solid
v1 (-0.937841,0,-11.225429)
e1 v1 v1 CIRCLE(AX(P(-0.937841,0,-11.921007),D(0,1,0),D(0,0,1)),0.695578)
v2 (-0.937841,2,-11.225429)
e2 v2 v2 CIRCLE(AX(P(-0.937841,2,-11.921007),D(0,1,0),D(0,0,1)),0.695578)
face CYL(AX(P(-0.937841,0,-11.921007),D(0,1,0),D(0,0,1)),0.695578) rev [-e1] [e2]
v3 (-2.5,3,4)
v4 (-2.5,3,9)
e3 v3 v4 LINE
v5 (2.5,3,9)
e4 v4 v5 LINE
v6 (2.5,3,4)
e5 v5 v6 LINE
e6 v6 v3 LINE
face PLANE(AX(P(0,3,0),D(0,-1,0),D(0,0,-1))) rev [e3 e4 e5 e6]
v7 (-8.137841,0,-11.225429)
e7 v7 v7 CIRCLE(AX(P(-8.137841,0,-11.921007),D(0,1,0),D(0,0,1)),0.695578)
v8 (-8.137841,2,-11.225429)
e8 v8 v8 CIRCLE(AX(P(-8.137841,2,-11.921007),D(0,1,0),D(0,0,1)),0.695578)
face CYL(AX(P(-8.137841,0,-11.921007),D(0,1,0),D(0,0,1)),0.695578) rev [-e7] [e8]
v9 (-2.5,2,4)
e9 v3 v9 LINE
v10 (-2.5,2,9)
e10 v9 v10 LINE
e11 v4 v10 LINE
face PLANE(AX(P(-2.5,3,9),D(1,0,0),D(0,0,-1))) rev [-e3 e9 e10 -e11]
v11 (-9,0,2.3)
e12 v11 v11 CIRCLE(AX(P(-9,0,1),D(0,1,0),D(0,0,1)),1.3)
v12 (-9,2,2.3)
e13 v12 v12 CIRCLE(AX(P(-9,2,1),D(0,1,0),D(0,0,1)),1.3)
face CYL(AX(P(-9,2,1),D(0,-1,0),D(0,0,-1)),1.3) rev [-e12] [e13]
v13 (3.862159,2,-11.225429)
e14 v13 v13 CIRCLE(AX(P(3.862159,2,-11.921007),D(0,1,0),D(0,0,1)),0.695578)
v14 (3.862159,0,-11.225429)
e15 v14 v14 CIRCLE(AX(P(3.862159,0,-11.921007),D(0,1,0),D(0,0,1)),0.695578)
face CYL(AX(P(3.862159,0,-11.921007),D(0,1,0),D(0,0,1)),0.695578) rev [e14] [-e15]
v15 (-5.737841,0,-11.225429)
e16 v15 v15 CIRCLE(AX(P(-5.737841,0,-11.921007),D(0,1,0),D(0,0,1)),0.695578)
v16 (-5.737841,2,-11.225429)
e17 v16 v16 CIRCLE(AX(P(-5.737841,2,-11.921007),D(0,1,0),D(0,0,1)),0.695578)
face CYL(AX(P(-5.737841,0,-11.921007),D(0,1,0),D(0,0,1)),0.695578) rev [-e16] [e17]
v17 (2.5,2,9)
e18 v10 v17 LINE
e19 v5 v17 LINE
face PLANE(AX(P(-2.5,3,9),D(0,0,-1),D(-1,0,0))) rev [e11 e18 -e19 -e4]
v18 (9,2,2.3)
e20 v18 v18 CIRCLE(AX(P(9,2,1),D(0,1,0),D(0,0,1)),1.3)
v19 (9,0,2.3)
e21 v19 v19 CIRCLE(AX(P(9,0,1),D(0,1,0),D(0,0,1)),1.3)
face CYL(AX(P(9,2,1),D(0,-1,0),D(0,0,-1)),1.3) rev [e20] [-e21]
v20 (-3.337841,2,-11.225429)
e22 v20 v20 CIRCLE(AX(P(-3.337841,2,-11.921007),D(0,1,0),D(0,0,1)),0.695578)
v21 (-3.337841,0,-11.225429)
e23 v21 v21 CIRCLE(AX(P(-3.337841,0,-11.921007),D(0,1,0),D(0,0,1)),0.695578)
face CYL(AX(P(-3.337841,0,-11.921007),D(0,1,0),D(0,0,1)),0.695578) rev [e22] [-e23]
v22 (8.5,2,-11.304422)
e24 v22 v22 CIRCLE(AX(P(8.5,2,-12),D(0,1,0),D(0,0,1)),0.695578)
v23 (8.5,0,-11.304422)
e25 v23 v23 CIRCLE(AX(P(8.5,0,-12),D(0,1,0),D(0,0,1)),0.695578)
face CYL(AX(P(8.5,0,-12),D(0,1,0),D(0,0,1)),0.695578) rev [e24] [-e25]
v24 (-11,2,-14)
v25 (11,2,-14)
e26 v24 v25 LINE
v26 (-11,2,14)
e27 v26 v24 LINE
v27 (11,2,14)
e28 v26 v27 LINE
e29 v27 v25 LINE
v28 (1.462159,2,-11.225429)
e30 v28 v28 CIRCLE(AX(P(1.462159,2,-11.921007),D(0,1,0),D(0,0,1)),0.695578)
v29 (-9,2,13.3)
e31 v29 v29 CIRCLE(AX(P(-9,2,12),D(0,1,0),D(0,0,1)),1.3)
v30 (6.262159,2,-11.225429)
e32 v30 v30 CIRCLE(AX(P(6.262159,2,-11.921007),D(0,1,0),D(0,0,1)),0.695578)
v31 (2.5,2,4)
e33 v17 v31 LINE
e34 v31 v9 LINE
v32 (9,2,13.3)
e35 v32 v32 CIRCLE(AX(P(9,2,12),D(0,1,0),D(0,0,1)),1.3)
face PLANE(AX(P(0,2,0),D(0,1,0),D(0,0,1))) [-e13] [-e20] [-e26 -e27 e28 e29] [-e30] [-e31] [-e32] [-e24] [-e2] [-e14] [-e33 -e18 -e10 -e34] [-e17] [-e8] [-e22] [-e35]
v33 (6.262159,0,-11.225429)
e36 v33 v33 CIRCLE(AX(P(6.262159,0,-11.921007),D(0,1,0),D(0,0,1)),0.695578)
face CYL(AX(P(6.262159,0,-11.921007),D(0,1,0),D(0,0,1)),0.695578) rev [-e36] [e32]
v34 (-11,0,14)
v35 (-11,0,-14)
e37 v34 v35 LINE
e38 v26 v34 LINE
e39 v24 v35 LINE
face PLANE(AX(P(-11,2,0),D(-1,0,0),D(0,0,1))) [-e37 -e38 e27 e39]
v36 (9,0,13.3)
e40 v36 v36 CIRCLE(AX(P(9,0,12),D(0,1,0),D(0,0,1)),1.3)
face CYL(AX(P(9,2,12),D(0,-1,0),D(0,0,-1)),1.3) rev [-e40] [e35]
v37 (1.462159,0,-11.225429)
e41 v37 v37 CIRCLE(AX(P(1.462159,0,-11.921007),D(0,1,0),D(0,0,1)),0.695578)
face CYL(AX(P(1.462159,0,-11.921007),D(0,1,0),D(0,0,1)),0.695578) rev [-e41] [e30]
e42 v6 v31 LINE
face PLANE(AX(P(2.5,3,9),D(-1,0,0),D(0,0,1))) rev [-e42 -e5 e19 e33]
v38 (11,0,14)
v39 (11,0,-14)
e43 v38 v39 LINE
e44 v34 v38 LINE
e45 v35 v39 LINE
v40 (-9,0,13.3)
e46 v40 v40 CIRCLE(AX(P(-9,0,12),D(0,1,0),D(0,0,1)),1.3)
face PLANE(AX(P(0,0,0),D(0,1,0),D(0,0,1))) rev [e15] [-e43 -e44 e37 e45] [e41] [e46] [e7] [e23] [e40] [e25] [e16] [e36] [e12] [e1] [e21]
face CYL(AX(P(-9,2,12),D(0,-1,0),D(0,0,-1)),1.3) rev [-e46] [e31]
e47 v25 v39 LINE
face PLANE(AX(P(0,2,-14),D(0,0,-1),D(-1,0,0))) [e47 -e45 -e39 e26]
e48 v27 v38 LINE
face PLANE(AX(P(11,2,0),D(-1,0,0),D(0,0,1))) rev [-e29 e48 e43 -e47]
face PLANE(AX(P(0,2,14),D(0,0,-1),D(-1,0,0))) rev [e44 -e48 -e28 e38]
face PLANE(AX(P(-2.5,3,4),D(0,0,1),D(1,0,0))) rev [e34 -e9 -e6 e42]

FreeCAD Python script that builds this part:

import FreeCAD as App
import Part
import Sketcher

V = App.Vector
Q = App.Units.Quantity

doc = App.newDocument("Part")
body = doc.addObject("PartDesign::Body", "Body")

sketch1 = body.newObject("Sketcher::SketchObject", "Sketch")
sketch1.AttachmentSupport = (doc.getObject("XZ_Plane"), [""])
sketch1.MapMode = "FlatFace"
sketch1.addGeometry(Part.LineSegment(V(-11, -14, 0), V(-11, 14, 0)), False)
sketch1.addGeometry(Part.LineSegment(V(-11, 14, 0), V(11, 14, 0)), False)
sketch1.addGeometry(Part.LineSegment(V(11, 14, 0), V(11, -14, 0)), False)
sketch1.addGeometry(Part.LineSegment(V(11, -14, 0), V(-11, -14, 0)), False)
sketch1.addGeometry(Part.Circle(V(-9, 12, 0), V(0, 0, 1), 1.3), False)
sketch1.addGeometry(Part.Circle(V(9, 12, 0), V(0, 0, 1), 1.3), False)
sketch1.addGeometry(Part.Circle(V(-9, 1, 0), V(0, 0, 1), 1.3), False)
sketch1.addGeometry(Part.Circle(V(9, 1, 0), V(0, 0, 1), 1.3), False)
sketch1.addConstraint(Sketcher.Constraint("Coincident", 0, 2, 1, 1))
sketch1.addConstraint(Sketcher.Constraint("Coincident", 1, 2, 2, 1))
sketch1.addConstraint(Sketcher.Constraint("Coincident", 2, 2, 3, 1))
sketch1.addConstraint(Sketcher.Constraint("Coincident", 3, 2, 0, 1))
sketch1.addConstraint(Sketcher.Constraint("Vertical", 0))
sketch1.addConstraint(Sketcher.Constraint("Horizontal", 1))
sketch1.addConstraint(Sketcher.Constraint("Vertical", 2))
sketch1.addConstraint(Sketcher.Constraint("Horizontal", 3))
sketch1.addConstraint(Sketcher.Constraint("Equal", 4, 5))
sketch1.addConstraint(Sketcher.Constraint("Equal", 5, 6))
sketch1.addConstraint(Sketcher.Constraint("Equal", 6, 7))
sketch1.addConstraint(Sketcher.Constraint("Symmetric", 0, 2, 2, 2, -1, 1))
sketch1.addConstraint(Sketcher.Constraint("Symmetric", 4, 3, 5, 3, -2))
sketch1.addConstraint(Sketcher.Constraint("Symmetric", 6, 3, 7, 3, -2))
sketch1.addConstraint(Sketcher.Constraint("Vertical", 4, 3, 6, 3))
sketch1.addConstraint(Sketcher.Constraint("Diameter", 4, Q("2.6 mm")))
sketch1.addConstraint(Sketcher.Constraint("DistanceX", 1, 1, 1, 2, Q("22 mm")))
sketch1.addConstraint(Sketcher.Constraint("DistanceY", 0, 1, 0, 2, Q("28 mm")))
sketch1.addConstraint(Sketcher.Constraint("DistanceX", 4, 3, -1, 1, Q("9 mm")))
sketch1.addConstraint(Sketcher.Constraint("DistanceY", -1, 1, 4, 3, Q("12 mm")))
sketch1.addConstraint(Sketcher.Constraint("DistanceY", -1, 1, 6, 3, Q("1 mm")))
pad1 = body.newObject("PartDesign::Pad", "Pad")
pad1.Profile = sketch1
pad1.Length = 2
pad1.Reversed = True

sketch2 = body.newObject("Sketcher::SketchObject", "Sketch001")
sketch2.AttachmentSupport = (doc.getObject("XZ_Plane"), [""])
sketch2.MapMode = "FlatFace"
sketch2.AttachmentOffset = App.Placement(V(0, 0, -2), App.Rotation())
sketch2.addGeometry(Part.LineSegment(V(-2, 4, 0), V(-2, 9, 0)), False)
sketch2.addGeometry(Part.LineSegment(V(-2, 9, 0), V(2, 9, 0)), False)
sketch2.addGeometry(Part.LineSegment(V(2, 9, 0), V(2, 4, 0)), False)
sketch2.addGeometry(Part.LineSegment(V(2, 4, 0), V(-2, 4, 0)), False)
sketch2.addConstraint(Sketcher.Constraint("Coincident", 0, 2, 1, 1))
sketch2.addConstraint(Sketcher.Constraint("Coincident", 1, 2, 2, 1))
sketch2.addConstraint(Sketcher.Constraint("Coincident", 2, 2, 3, 1))
sketch2.addConstraint(Sketcher.Constraint("Coincident", 3, 2, 0, 1))
sketch2.addConstraint(Sketcher.Constraint("Vertical", 0))
sketch2.addConstraint(Sketcher.Constraint("Horizontal", 1))
sketch2.addConstraint(Sketcher.Constraint("Vertical", 2))
sketch2.addConstraint(Sketcher.Constraint("Horizontal", 3))
sketch2.addConstraint(Sketcher.Constraint("Equal", 3, 0))
sketch2.addConstraint(Sketcher.Constraint("DistanceX", 1, 1, 1, 2, Q("5 mm")))
sketch2.addConstraint(Sketcher.Constraint("DistanceY", -1, 1, 0, 2, Q("9 mm")))
sketch2.addConstraint(Sketcher.Constraint("DistanceX", 0, 2, -1, 1, Q("2.5 mm")))
pad2 = body.newObject("PartDesign::Pad", "Pad001")
pad2.Profile = sketch2
pad2.Length = 1
pad2.Reversed = True

sketch3 = body.newObject("Sketcher::SketchObject", "Sketch002")
sketch3.AttachmentSupport = (doc.getObject("XZ_Plane"), [""])
sketch3.MapMode = "FlatFace"
sketch3.AttachmentOffset = App.Placement(V(0, 0, -2), App.Rotation())
sketch3.addGeometry(Part.Circle(V(-8.1, -11.9, 0), V(0, 0, 1), 0.7), False)
sketch3.addGeometry(Part.Circle(V(8.5, -12, 0), V(0, 0, 1), 0.7), False)
sketch3.addGeometry(Part.Circle(V(-5.7, -11.9, 0), V(0, 0, 1), 0.7), False)
sketch3.addGeometry(Part.Circle(V(-3.3, -11.9, 0), V(0, 0, 1), 0.7), False)
sketch3.addGeometry(Part.Circle(V(-0.9, -11.9, 0), V(0, 0, 1), 0.7), False)
sketch3.addGeometry(Part.Circle(V(1.5, -11.9, 0), V(0, 0, 1), 0.7), False)
sketch3.addGeometry(Part.Circle(V(3.9, -11.9, 0), V(0, 0, 1), 0.7), False)
sketch3.addGeometry(Part.Circle(V(6.3, -11.9, 0), V(0, 0, 1), 0.7), False)
sketch3.addConstraint(Sketcher.Constraint("Equal", 0, 1))
sketch3.addConstraint(Sketcher.Constraint("Equal", 1, 2))
sketch3.addConstraint(Sketcher.Constraint("Equal", 2, 3))
sketch3.addConstraint(Sketcher.Constraint("Equal", 3, 4))
sketch3.addConstraint(Sketcher.Constraint("Equal", 4, 5))
sketch3.addConstraint(Sketcher.Constraint("Equal", 5, 6))
sketch3.addConstraint(Sketcher.Constraint("Equal", 6, 7))
sketch3.addConstraint(Sketcher.Constraint("Horizontal", 0, 3, 2, 3))
sketch3.addConstraint(Sketcher.Constraint("Horizontal", 2, 3, 3, 3))
sketch3.addConstraint(Sketcher.Constraint("Horizontal", 3, 3, 4, 3))
sketch3.addConstraint(Sketcher.Constraint("Horizontal", 4, 3, 5, 3))
sketch3.addConstraint(Sketcher.Constraint("Horizontal", 5, 3, 6, 3))
sketch3.addConstraint(Sketcher.Constraint("Horizontal", 6, 3, 7, 3))
sketch3.addConstraint(Sketcher.Constraint("DistanceY", 1, 3, -1, 1, Q("12 mm")))
sketch3.addConstraint(Sketcher.Constraint("DistanceX", -1, 1, 1, 3, Q("8.5 mm")))
sketch3.addConstraint(Sketcher.Constraint("DistanceX", 0, 3, 2, 3, Q("2.4 mm")))
sketch3.addConstraint(Sketcher.Constraint("DistanceX", 2, 3, 3, 3, Q("2.4 mm")))
sketch3.addConstraint(Sketcher.Constraint("DistanceX", 3, 3, 4, 3, Q("2.4 mm")))
sketch3.addConstraint(Sketcher.Constraint("DistanceX", 4, 3, 5, 3, Q("2.4 mm")))
sketch3.addConstraint(Sketcher.Constraint("DistanceX", 5, 3, 6, 3, Q("2.4 mm")))
sketch3.addConstraint(Sketcher.Constraint("DistanceX", 6, 3, 7, 3, Q("2.4 mm")))
sketch3.addConstraint(Sketcher.Constraint("Diameter", 0, Q("1.391156 mm")))
sketch3.addConstraint(Sketcher.Constraint("DistanceX", 0, 3, -1, 1, Q("8.137841 mm")))
sketch3.addConstraint(Sketcher.Constraint("DistanceY", 0, 3, -1, 1, Q("11.921007 mm")))
pocket1 = body.newObject("PartDesign::Pocket", "Pocket")
pocket1.Profile = sketch3
pocket1.Type = "ThroughAll"
pocket1.Reversed = True

doc.recompute()
